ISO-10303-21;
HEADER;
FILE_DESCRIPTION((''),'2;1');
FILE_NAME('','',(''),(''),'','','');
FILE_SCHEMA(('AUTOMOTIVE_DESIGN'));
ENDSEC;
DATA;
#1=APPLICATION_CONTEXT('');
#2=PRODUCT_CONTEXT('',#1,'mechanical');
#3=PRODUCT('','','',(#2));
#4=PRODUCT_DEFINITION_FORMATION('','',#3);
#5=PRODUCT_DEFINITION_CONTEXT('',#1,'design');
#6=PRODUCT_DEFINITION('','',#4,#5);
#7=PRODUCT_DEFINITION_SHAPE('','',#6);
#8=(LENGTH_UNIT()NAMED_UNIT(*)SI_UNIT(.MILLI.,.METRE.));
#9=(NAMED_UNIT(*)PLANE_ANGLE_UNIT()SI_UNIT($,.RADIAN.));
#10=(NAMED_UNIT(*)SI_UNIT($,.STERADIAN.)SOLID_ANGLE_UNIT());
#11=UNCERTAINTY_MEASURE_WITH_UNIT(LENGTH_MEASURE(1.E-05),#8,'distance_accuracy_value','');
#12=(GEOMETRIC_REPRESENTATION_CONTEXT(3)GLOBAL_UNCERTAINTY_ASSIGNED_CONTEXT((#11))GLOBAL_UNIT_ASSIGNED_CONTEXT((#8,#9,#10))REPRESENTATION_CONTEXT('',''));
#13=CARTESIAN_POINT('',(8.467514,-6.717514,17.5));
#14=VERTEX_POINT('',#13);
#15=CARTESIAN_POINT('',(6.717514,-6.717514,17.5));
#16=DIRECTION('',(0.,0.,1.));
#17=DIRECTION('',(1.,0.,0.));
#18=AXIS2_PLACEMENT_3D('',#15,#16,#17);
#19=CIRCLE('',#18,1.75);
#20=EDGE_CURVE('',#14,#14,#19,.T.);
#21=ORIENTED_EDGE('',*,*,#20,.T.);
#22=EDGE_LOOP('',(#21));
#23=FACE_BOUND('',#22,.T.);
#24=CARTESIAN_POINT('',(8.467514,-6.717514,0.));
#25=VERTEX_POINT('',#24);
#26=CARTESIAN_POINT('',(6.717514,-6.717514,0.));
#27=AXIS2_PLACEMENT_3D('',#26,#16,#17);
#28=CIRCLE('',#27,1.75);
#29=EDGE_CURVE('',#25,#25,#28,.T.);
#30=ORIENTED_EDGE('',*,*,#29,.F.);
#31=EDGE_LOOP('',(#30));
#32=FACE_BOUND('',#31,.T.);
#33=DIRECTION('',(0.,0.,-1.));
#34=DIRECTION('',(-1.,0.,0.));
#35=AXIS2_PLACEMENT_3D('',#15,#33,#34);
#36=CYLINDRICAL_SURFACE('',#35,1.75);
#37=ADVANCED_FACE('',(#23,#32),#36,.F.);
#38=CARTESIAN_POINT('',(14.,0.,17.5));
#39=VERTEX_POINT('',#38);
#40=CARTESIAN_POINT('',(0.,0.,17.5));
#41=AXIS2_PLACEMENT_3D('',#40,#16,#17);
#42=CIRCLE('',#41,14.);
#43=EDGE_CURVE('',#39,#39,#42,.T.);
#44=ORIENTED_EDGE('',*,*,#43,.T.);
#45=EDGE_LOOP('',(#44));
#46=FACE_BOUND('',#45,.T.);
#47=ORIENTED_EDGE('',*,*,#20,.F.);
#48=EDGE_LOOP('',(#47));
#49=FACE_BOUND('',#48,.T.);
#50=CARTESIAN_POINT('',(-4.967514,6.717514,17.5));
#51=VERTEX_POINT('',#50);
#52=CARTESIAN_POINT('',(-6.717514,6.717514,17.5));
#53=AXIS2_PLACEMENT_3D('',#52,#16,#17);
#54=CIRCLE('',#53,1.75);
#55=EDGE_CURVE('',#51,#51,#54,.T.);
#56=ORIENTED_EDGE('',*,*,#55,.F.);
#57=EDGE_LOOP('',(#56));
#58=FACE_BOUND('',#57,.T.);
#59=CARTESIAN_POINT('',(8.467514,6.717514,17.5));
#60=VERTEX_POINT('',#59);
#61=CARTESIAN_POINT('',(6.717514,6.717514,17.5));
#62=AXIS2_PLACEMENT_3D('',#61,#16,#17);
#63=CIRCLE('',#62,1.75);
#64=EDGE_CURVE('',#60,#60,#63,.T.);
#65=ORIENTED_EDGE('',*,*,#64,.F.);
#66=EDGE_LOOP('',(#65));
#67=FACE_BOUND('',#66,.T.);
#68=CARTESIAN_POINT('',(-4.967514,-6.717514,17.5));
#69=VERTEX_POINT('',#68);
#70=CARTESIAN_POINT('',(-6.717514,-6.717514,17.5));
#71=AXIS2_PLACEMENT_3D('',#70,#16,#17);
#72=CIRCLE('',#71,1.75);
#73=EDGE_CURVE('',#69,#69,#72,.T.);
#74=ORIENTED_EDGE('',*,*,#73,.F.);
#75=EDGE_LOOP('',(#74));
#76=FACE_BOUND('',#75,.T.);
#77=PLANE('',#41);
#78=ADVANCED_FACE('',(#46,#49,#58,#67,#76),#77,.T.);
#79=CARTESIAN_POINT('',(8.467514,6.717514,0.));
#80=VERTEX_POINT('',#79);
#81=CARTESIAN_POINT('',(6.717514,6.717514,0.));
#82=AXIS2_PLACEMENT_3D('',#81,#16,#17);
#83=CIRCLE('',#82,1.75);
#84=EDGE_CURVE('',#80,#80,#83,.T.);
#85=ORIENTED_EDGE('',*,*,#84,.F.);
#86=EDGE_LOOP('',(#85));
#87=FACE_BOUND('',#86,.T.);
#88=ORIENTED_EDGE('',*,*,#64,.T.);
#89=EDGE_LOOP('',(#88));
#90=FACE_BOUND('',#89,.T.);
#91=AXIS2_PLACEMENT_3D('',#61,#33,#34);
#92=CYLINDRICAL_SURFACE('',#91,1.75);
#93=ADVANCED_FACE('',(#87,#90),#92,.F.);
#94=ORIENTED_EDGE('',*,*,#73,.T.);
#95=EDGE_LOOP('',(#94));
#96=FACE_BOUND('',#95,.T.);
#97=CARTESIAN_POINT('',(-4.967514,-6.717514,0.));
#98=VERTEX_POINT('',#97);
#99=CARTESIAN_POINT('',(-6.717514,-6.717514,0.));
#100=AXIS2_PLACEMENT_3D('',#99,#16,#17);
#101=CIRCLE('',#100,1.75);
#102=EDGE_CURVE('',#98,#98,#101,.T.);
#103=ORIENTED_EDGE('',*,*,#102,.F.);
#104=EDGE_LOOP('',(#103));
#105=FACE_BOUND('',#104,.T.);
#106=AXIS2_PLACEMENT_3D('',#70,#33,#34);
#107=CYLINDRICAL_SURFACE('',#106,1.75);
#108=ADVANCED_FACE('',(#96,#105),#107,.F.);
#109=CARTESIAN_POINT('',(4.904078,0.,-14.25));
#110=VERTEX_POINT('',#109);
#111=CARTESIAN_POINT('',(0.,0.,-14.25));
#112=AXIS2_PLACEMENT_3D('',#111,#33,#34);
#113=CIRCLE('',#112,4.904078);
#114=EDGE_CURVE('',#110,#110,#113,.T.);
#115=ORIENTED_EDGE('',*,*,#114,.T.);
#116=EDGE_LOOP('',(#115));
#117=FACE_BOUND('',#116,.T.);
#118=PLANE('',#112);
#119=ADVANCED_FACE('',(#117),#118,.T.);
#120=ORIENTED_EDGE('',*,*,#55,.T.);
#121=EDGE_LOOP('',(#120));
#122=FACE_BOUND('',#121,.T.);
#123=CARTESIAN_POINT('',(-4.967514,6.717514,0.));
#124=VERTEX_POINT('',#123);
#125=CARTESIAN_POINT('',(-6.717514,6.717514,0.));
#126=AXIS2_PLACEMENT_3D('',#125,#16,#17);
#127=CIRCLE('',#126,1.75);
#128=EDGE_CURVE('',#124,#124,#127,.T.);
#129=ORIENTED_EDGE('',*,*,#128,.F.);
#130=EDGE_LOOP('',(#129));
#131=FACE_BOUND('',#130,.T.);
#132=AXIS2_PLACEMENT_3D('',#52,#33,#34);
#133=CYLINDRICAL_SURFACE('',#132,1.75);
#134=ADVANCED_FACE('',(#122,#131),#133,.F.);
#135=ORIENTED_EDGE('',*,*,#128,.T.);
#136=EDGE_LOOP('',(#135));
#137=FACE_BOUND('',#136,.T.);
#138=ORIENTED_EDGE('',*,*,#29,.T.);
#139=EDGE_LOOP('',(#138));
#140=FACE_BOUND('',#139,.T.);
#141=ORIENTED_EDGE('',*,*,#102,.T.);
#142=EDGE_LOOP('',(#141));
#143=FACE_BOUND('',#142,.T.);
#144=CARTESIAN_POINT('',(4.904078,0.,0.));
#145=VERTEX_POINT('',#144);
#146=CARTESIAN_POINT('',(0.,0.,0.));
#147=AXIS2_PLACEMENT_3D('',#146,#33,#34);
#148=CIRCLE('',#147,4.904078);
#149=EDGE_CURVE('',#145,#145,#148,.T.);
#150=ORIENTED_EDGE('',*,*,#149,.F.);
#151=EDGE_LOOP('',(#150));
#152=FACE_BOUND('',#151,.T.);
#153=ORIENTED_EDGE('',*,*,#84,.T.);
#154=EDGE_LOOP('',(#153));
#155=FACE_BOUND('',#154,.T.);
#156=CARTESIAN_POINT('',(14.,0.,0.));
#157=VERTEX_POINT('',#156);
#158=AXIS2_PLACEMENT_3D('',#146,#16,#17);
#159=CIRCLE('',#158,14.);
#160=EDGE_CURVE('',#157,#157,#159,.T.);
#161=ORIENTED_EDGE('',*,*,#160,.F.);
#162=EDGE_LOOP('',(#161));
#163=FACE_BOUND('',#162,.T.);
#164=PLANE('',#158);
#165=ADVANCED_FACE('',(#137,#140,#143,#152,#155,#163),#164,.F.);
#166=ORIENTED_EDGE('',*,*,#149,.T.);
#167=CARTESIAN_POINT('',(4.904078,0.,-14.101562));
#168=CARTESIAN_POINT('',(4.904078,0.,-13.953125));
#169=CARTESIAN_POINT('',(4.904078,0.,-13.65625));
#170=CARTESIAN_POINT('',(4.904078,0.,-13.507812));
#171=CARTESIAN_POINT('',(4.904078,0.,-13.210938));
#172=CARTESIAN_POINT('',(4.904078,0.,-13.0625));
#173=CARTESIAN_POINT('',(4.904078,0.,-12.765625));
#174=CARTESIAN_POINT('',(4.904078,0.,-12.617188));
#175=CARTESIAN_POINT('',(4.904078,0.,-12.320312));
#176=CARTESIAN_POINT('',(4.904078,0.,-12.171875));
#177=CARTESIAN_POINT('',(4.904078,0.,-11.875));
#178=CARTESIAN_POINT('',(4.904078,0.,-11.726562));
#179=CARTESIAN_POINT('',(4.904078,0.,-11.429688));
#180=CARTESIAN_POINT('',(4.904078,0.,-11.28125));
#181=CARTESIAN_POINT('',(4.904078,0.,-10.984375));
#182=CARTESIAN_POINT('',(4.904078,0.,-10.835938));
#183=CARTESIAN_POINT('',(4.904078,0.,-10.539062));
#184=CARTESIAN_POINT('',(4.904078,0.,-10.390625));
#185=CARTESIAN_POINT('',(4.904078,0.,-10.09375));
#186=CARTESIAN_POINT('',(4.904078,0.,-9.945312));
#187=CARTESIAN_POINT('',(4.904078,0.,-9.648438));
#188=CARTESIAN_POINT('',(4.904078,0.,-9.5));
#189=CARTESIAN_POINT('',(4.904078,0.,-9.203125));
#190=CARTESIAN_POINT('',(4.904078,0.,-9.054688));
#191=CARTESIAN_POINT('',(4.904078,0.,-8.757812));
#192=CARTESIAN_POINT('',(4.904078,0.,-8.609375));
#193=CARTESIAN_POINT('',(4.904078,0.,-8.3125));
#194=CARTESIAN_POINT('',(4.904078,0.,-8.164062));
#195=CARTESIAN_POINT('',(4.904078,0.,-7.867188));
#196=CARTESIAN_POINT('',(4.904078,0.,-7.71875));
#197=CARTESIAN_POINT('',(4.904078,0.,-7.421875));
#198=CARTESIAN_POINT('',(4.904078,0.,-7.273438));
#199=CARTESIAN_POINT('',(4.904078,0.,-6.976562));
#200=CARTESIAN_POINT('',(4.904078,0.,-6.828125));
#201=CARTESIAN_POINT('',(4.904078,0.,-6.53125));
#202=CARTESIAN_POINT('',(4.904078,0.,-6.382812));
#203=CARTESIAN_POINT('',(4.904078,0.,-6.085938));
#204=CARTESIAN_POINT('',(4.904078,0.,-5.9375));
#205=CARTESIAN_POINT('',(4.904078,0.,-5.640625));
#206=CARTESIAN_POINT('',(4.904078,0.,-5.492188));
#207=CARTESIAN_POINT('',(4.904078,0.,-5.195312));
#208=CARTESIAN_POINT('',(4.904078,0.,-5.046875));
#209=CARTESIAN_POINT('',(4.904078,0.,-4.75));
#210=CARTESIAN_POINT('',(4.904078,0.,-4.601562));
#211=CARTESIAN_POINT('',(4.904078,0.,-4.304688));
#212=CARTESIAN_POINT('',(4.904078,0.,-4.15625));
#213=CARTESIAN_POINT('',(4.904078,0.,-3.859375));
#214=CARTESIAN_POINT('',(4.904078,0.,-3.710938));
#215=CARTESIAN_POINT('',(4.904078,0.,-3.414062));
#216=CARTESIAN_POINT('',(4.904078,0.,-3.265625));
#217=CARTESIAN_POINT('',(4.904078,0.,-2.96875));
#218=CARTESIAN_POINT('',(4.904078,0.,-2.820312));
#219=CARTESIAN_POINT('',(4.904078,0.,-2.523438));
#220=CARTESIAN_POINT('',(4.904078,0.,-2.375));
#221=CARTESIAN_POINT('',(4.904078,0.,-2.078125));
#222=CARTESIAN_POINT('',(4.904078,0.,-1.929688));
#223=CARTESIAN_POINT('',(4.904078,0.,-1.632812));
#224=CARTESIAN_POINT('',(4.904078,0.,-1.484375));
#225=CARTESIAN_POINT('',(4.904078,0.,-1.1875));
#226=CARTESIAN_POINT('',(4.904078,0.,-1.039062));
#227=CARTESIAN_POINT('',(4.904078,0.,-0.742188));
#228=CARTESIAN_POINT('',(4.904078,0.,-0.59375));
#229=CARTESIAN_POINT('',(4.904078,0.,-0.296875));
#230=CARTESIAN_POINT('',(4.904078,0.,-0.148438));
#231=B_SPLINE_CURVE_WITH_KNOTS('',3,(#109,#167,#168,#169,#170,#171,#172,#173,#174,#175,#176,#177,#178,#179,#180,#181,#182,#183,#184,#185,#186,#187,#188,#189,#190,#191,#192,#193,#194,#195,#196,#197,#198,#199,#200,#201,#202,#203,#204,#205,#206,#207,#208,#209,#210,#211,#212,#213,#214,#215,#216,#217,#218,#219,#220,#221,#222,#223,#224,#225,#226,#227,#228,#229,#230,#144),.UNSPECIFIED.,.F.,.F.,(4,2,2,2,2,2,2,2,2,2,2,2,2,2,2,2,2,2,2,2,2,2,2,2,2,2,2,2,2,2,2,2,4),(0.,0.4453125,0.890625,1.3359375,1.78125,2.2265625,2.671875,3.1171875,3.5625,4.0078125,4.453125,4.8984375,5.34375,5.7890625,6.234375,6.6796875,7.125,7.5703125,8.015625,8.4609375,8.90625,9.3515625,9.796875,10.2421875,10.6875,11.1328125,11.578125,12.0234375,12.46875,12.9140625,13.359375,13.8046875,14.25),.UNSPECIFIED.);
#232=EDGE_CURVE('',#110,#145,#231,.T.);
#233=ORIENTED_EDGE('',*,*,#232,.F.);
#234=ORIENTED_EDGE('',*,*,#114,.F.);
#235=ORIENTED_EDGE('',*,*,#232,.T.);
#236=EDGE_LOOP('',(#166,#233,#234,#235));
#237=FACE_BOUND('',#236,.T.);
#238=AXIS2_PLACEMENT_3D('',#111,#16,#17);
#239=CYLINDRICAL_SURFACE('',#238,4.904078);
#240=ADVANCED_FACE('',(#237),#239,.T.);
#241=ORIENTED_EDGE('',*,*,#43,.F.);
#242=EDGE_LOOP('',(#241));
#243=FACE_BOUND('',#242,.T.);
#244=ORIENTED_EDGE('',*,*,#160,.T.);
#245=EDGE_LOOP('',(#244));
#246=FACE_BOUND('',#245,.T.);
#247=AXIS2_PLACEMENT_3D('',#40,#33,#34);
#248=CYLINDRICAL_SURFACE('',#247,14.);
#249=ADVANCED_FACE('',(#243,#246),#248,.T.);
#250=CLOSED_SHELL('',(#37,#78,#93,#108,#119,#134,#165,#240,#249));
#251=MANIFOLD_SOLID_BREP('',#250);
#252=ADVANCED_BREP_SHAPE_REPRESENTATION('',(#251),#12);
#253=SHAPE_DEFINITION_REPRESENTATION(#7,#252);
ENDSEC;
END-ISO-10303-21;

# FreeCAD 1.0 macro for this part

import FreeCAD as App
import Part
import Sketcher

V = App.Vector
Q = App.Units.Quantity

doc = App.newDocument("Part")
body = doc.addObject("PartDesign::Body", "Body")

# Sketch on XY plane
sketch1 = body.newObject("Sketcher::SketchObject", "Sketch")
sketch1.AttachmentSupport = (doc.getObject("XY_Plane"), [""])
sketch1.MapMode = "FlatFace"
sketch1.addGeometry([
    Part.Circle(V(0, 0, 0), V(0, 0, 1), 14),  # 0
    Part.Circle(V(-6.7, -6.7, 0), V(0, 0, 1), 1.8),  # 1
    Part.Circle(V(6.7, -6.7, 0), V(0, 0, 1), 1.8),  # 2
    Part.Circle(V(-6.7, 6.7, 0), V(0, 0, 1), 1.8),  # 3
    Part.Circle(V(6.7, 6.7, 0), V(0, 0, 1), 1.8),  # 4
], False)
sketch1.addConstraint([
    Sketcher.Constraint("Coincident", 0, 3, -1, 1),
    Sketcher.Constraint("Equal", 1, 2),
    Sketcher.Constraint("Equal", 2, 3),
    Sketcher.Constraint("Equal", 3, 4),
    Sketcher.Constraint("Symmetric", 2, 3, 3, 3, -1, 1),
    Sketcher.Constraint("Symmetric", 1, 3, 4, 3, -1, 1),
    Sketcher.Constraint("Symmetric", 1, 3, 2, 3, -2),
    Sketcher.Constraint("Diameter", 0, Q("28 mm")),
    Sketcher.Constraint("Diameter", 1, Q("3.5 mm")),
    Sketcher.Constraint("DistanceX", 1, 3, 2, 3, Q("13.435029 mm")),
    Sketcher.Constraint("DistanceY", 1, 3, 3, 3, Q("13.435029 mm")),
])
pad1 = body.newObject("PartDesign::Pad", "Pad")
pad1.Profile = sketch1
pad1.Length = 17.5

# Sketch on XY plane
sketch2 = body.newObject("Sketcher::SketchObject", "Sketch001")
sketch2.AttachmentSupport = (doc.getObject("XY_Plane"), [""])
sketch2.MapMode = "FlatFace"
sketch2.addGeometry(Part.Circle(V(0, 0, 0), V(0, 0, 1), 4.9), False)
sketch2.addConstraint([
    Sketcher.Constraint("Coincident", 0, 3, -1, 1),
    Sketcher.Constraint("Diameter", 0, Q("9.808156 mm")),
])
pad2 = body.newObject("PartDesign::Pad", "Pad001")
pad2.Profile = sketch2
pad2.Length = 14.25
pad2.Reversed = True

doc.recompute()
